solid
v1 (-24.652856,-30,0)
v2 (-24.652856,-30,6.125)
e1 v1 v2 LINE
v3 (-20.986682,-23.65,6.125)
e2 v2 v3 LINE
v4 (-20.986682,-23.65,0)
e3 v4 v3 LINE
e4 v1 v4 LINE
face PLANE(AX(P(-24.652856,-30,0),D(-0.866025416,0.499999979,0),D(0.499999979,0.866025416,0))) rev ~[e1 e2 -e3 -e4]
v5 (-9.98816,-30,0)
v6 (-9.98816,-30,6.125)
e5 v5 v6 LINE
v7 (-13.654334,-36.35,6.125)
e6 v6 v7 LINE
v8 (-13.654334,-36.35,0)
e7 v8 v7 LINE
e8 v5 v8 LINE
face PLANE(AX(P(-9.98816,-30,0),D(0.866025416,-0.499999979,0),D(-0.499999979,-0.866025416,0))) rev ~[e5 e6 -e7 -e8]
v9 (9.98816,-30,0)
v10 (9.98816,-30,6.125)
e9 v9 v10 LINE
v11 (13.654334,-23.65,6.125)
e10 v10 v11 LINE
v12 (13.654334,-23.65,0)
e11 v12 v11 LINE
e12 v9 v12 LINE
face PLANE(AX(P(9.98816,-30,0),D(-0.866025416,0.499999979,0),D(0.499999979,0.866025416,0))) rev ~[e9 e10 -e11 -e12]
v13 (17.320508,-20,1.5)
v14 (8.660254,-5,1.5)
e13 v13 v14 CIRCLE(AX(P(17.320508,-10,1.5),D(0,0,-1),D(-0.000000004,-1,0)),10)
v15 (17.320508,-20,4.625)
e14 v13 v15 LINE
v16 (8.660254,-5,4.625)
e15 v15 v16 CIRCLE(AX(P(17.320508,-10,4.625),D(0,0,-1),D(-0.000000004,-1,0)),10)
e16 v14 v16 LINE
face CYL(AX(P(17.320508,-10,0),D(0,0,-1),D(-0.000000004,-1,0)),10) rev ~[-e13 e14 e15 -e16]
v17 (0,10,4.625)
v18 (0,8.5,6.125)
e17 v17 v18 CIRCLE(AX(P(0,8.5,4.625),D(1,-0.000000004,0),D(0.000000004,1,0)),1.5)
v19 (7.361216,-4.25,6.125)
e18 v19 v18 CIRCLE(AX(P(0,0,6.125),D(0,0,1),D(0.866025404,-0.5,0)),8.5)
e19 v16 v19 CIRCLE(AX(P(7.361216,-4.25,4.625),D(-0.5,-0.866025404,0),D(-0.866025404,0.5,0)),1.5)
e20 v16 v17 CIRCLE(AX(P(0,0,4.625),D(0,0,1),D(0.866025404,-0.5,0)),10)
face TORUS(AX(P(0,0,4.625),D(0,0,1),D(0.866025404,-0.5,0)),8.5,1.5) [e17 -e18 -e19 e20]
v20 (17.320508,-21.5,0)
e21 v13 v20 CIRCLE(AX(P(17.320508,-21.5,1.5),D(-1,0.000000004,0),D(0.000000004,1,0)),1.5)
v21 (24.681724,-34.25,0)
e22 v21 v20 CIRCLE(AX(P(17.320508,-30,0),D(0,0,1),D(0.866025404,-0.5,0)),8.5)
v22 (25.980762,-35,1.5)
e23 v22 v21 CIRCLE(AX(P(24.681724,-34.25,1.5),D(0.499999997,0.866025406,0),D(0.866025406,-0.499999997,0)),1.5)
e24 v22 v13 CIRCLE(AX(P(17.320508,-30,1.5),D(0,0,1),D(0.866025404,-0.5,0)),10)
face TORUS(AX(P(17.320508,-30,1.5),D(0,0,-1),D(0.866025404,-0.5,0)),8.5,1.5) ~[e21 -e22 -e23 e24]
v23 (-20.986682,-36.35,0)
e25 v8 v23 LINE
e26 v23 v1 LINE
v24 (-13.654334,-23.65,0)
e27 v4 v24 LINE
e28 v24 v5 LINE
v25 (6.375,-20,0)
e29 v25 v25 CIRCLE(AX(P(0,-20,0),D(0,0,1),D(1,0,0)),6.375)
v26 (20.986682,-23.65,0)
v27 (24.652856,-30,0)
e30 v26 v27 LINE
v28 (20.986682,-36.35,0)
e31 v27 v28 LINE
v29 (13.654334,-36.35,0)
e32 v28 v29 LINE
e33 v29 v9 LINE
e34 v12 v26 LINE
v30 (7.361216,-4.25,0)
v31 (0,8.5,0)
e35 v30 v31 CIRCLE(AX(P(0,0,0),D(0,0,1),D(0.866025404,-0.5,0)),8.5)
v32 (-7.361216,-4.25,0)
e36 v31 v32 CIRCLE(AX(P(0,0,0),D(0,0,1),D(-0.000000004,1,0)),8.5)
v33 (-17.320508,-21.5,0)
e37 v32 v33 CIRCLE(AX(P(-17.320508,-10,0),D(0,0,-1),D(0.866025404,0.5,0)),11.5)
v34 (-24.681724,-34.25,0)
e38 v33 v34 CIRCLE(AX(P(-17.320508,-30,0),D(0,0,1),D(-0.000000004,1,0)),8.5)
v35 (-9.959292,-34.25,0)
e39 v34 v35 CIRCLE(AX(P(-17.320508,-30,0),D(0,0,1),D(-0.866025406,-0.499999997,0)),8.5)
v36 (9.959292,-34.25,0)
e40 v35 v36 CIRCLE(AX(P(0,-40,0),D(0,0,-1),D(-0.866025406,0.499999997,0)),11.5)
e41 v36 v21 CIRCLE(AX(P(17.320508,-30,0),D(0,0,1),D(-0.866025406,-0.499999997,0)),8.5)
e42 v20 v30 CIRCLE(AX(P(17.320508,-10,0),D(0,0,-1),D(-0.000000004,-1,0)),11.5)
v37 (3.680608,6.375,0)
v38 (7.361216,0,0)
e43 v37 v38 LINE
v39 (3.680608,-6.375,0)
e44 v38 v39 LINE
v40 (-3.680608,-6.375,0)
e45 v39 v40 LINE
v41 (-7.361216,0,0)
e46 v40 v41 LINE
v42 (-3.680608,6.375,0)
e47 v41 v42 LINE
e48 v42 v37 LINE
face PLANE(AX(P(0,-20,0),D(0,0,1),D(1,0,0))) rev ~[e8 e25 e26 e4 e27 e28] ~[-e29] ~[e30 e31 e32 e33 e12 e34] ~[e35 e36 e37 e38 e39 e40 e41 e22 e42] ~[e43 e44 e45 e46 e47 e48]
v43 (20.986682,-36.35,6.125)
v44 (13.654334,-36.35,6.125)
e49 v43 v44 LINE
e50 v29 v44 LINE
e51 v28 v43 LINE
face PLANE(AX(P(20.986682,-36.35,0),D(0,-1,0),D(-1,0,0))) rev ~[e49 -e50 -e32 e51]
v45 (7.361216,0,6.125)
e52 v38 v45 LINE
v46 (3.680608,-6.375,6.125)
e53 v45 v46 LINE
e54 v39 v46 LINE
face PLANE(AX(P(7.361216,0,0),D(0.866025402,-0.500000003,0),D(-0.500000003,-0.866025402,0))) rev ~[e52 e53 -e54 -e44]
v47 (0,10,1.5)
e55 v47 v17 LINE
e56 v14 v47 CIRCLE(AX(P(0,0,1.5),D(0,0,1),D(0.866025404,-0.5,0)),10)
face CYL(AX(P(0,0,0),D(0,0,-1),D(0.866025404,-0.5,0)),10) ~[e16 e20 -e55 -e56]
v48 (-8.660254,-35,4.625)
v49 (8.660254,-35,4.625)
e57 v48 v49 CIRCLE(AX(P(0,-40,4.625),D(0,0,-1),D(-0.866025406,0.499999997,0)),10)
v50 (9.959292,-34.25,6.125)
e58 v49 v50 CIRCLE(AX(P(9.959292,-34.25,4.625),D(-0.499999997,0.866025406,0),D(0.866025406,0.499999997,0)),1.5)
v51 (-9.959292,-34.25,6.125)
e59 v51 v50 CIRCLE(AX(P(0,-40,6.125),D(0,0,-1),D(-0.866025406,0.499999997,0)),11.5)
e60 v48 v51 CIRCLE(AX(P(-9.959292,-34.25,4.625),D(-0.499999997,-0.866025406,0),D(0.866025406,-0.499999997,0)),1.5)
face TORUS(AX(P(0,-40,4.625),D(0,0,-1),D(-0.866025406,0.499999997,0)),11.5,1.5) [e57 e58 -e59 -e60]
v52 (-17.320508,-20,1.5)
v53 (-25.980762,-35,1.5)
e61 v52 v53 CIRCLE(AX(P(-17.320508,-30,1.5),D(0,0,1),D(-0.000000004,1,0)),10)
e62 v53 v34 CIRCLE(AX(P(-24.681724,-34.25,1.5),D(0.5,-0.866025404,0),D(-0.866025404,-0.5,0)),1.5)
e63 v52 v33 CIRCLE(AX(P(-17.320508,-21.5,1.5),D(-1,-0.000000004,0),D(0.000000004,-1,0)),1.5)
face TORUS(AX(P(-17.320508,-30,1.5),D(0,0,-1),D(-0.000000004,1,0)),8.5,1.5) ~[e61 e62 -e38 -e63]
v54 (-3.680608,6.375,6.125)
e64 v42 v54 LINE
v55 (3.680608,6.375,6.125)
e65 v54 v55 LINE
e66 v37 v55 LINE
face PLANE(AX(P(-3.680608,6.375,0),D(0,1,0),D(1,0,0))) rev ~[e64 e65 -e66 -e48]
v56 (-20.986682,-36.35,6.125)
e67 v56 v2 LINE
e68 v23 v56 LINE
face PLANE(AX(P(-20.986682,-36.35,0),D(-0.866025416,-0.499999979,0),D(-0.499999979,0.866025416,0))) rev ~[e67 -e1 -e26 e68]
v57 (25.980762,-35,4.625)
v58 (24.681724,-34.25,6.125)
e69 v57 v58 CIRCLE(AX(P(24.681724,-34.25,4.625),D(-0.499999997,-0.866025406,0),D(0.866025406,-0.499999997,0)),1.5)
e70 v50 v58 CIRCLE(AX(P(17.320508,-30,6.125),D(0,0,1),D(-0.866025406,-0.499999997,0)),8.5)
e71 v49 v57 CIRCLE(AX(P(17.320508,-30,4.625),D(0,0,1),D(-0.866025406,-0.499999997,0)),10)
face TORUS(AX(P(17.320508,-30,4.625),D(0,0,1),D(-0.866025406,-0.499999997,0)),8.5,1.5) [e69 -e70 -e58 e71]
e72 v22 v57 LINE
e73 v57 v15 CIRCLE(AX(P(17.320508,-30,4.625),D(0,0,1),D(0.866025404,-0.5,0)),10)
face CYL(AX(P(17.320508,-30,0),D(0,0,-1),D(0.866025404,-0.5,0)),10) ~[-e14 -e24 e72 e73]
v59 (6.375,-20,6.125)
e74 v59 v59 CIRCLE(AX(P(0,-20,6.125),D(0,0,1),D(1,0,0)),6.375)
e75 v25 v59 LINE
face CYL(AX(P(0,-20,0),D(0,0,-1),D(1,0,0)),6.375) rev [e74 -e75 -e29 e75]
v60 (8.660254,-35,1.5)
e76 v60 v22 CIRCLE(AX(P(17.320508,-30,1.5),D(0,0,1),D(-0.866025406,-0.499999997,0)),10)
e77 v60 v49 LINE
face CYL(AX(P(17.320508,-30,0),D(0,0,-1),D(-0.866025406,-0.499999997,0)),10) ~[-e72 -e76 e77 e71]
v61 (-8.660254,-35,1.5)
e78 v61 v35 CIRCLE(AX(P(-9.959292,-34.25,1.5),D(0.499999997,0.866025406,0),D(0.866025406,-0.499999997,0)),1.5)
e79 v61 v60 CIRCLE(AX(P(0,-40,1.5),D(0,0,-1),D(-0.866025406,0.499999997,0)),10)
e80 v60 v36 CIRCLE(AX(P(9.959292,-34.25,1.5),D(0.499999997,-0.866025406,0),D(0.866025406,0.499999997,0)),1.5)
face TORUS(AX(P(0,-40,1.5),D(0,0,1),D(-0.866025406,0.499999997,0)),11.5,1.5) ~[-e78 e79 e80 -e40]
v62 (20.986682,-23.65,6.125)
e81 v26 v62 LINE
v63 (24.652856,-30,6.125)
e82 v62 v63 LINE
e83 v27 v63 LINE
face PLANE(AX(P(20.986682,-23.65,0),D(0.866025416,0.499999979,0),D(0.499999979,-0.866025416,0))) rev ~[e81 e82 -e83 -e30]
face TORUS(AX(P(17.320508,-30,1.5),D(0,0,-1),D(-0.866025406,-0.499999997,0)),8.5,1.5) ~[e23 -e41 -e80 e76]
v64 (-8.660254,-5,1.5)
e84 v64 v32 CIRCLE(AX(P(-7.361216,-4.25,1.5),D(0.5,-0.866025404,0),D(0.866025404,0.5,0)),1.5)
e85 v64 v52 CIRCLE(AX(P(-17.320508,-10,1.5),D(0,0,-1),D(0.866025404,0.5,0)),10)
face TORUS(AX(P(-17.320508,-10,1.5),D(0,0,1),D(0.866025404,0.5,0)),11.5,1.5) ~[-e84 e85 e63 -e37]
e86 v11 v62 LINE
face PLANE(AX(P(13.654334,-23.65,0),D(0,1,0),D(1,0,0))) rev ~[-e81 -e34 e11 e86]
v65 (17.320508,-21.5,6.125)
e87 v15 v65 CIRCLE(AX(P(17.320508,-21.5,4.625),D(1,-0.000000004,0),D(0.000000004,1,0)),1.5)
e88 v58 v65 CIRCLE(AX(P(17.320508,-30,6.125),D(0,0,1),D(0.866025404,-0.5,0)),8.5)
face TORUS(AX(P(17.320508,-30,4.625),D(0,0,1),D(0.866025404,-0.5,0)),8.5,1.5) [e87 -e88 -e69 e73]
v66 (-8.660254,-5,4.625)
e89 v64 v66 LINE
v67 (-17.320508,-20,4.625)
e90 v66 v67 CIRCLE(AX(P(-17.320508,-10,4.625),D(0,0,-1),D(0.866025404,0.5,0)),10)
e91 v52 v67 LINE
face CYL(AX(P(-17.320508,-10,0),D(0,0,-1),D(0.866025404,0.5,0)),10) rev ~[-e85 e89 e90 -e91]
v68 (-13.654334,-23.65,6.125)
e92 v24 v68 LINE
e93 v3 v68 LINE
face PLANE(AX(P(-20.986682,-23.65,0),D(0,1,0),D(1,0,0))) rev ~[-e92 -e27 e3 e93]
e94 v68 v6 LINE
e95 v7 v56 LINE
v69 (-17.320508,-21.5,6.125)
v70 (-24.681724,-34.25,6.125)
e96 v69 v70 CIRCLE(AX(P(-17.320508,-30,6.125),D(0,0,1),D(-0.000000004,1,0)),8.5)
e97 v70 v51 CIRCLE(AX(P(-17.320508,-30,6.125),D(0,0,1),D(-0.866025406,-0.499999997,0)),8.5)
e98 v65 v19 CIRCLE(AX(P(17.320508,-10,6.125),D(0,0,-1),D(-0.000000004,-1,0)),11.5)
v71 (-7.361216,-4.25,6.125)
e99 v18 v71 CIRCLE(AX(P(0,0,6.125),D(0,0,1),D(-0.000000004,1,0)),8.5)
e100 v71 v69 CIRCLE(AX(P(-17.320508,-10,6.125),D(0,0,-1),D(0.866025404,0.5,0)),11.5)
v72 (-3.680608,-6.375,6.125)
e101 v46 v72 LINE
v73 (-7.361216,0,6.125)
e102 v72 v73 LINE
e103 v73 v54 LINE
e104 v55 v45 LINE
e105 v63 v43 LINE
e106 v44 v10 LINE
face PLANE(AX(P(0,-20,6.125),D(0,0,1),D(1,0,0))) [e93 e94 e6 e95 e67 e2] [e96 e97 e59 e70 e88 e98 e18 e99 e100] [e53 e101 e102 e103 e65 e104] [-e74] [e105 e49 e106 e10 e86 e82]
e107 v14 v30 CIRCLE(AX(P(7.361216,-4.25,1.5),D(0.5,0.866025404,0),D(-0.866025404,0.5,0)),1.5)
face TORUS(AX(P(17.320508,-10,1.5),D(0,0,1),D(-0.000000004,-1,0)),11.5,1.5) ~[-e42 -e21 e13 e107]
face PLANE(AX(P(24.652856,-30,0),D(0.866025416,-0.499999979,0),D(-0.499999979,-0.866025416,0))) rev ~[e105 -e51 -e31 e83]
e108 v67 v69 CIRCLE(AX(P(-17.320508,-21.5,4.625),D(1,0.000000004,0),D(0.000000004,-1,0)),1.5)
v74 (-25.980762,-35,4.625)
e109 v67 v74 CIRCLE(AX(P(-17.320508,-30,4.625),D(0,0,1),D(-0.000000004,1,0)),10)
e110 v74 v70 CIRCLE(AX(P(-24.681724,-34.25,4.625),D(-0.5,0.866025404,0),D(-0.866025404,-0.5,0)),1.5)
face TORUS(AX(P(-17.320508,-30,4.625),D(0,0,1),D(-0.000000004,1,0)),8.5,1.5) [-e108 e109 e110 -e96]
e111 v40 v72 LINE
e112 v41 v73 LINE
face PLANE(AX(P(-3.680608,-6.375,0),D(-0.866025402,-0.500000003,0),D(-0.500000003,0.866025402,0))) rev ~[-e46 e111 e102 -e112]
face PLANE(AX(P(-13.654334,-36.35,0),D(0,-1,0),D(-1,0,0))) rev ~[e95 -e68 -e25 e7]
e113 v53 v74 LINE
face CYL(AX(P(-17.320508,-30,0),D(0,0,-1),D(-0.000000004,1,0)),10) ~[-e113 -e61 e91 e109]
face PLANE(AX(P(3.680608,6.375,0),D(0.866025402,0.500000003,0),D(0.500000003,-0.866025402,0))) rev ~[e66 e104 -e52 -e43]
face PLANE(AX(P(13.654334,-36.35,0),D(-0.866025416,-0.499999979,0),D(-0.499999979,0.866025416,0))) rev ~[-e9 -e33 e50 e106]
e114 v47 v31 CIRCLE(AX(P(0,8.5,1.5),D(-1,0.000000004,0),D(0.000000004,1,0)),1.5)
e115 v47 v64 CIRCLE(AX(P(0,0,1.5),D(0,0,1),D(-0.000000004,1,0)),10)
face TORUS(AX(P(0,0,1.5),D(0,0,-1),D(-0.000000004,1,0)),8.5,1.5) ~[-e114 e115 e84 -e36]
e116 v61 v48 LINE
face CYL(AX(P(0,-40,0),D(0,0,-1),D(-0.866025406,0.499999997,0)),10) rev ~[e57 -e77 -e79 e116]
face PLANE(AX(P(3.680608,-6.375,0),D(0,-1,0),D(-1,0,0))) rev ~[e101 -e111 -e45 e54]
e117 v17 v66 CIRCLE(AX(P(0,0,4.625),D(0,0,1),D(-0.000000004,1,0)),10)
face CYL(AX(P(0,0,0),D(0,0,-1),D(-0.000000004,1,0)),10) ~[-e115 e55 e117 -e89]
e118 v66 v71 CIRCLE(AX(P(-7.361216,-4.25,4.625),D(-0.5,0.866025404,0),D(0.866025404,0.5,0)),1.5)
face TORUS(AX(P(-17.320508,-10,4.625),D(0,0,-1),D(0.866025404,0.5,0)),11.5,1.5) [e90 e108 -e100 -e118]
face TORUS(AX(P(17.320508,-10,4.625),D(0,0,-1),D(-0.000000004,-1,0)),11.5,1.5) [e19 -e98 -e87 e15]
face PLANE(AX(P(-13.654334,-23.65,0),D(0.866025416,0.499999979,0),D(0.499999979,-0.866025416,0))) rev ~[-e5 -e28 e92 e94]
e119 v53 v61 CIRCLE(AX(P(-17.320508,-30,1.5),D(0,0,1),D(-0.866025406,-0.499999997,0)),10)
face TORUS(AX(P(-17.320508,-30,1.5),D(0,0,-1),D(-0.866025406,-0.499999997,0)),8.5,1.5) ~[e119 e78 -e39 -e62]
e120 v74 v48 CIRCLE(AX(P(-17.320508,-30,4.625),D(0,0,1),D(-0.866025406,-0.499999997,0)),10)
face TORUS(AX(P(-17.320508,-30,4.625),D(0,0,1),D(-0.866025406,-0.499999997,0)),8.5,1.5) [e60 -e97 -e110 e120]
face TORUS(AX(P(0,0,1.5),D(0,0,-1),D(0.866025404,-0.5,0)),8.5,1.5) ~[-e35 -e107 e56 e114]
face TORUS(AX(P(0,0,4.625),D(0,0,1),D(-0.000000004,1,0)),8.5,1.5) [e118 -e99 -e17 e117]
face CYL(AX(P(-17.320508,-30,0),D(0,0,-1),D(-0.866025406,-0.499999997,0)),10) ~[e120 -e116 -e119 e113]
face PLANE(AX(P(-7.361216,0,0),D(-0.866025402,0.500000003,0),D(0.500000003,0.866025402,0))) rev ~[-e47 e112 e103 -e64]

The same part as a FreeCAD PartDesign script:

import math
import FreeCAD as App
import Part
import Sketcher
from FreeCAD import Vector
Q = App.Units.Quantity


def edges_at(feature, points):
    """Names of the edges that pass closest to the given points."""
    edges = feature.Shape.Edges
    near = lambda p: min(range(len(edges)), key=lambda i: edges[i].distToShape(Part.Vertex(*p))[0])
    return sorted({f"Edge{near(p) + 1}" for p in points})

doc = App.newDocument("Part")
body = doc.addObject("PartDesign::Body", "Body")

sketch1 = doc.addObject("Sketcher::SketchObject", "Sketch")
body.addObject(sketch1)
sketch1.AttachmentSupport = (doc.XY_Plane, [""])
sketch1.MapMode = "FlatFace"
sketch1.addGeometry([
    Part.ArcOfCircle(Part.Circle(Vector(-17, -30, 0), Vector(0, 0, 1), 10), math.radians(90), math.radians(210)),
    Part.ArcOfCircle(Part.Circle(Vector(-17, -30, 0), Vector(0, 0, 1), 10), math.radians(-150), math.radians(-30)),
    Part.ArcOfCircle(Part.Circle(Vector(0, -40, 0), Vector(0, 0, 1), 10), math.radians(30), math.radians(150)),
    Part.ArcOfCircle(Part.Circle(Vector(17, -30, 0), Vector(0, 0, 1), 10), math.radians(-150), math.radians(-30)),
    Part.ArcOfCircle(Part.Circle(Vector(17, -30, 0), Vector(0, 0, 1), 10), math.radians(-30), math.radians(90)),
    Part.ArcOfCircle(Part.Circle(Vector(17, -10, 0), Vector(0, 0, 1), 10), math.radians(150), math.radians(270)),
    Part.ArcOfCircle(Part.Circle(Vector(0, 0, 0), Vector(0, 0, 1), 10), math.radians(-30), math.radians(90)),
    Part.ArcOfCircle(Part.Circle(Vector(0, 0, 0), Vector(0, 0, 1), 10), math.radians(90), math.radians(210)),
    Part.ArcOfCircle(Part.Circle(Vector(-17, -10, 0), Vector(0, 0, 1), 10), math.radians(-90), math.radians(30)),
    Part.LineSegment(Vector(-25, -30, 0), Vector(-21, -24, 0)),
    Part.LineSegment(Vector(-21, -24, 0), Vector(-14, -24, 0)),
    Part.LineSegment(Vector(-14, -24, 0), Vector(-10, -30, 0)),
    Part.LineSegment(Vector(-10, -30, 0), Vector(-14, -36, 0)),
    Part.LineSegment(Vector(-14, -36, 0), Vector(-21, -36, 0)),
    Part.LineSegment(Vector(-21, -36, 0), Vector(-25, -30, 0)),
    Part.Circle(Vector(0, -20, 0), Vector(0, 0, 1), 6),
    Part.LineSegment(Vector(21, -24, 0), Vector(25, -30, 0)),
    Part.LineSegment(Vector(25, -30, 0), Vector(21, -36, 0)),
    Part.LineSegment(Vector(21, -36, 0), Vector(14, -36, 0)),
    Part.LineSegment(Vector(14, -36, 0), Vector(10, -30, 0)),
    Part.LineSegment(Vector(10, -30, 0), Vector(14, -24, 0)),
    Part.LineSegment(Vector(14, -24, 0), Vector(21, -24, 0)),
    Part.LineSegment(Vector(-7, 0, 0), Vector(-4, 6, 0)),
    Part.LineSegment(Vector(-4, 6, 0), Vector(4, 6, 0)),
    Part.LineSegment(Vector(4, 6, 0), Vector(7, 0, 0)),
    Part.LineSegment(Vector(7, 0, 0), Vector(4, -6, 0)),
    Part.LineSegment(Vector(4, -6, 0), Vector(-4, -6, 0)),
    Part.LineSegment(Vector(-4, -6, 0), Vector(-7, 0, 0)),
], False)
sketch1.addConstraint([
    Sketcher.Constraint("Tangent", 0, 2, 1, 1),
    Sketcher.Constraint("Tangent", 1, 2, 2, 2),
    Sketcher.Constraint("Tangent", 2, 1, 3, 1),
    Sketcher.Constraint("Tangent", 3, 2, 4, 1),
    Sketcher.Constraint("Tangent", 4, 2, 5, 2),
    Sketcher.Constraint("Tangent", 5, 1, 6, 1),
    Sketcher.Constraint("Tangent", 6, 2, 7, 1),
    Sketcher.Constraint("Tangent", 7, 2, 8, 2),
    Sketcher.Constraint("Tangent", 8, 1, 0, 1),
    Sketcher.Constraint("Coincident", 9, 2, 10, 1),
    Sketcher.Constraint("Coincident", 10, 2, 11, 1),
    Sketcher.Constraint("Coincident", 11, 2, 12, 1),
    Sketcher.Constraint("Coincident", 12, 2, 13, 1),
    Sketcher.Constraint("Coincident", 13, 2, 14, 1),
    Sketcher.Constraint("Coincident", 14, 2, 9, 1),
    Sketcher.Constraint("Coincident", 16, 2, 17, 1),
    Sketcher.Constraint("Coincident", 17, 2, 18, 1),
    Sketcher.Constraint("Coincident", 18, 2, 19, 1),
    Sketcher.Constraint("Coincident", 19, 2, 20, 1),
    Sketcher.Constraint("Coincident", 20, 2, 21, 1),
    Sketcher.Constraint("Coincident", 21, 2, 16, 1),
    Sketcher.Constraint("Coincident", 22, 2, 23, 1),
    Sketcher.Constraint("Coincident", 23, 2, 24, 1),
    Sketcher.Constraint("Coincident", 24, 2, 25, 1),
    Sketcher.Constraint("Coincident", 25, 2, 26, 1),
    Sketcher.Constraint("Coincident", 26, 2, 27, 1),
    Sketcher.Constraint("Coincident", 27, 2, 22, 1),
    Sketcher.Constraint("Horizontal", 10),
    Sketcher.Constraint("Horizontal", 13),
    Sketcher.Constraint("Horizontal", 18),
    Sketcher.Constraint("Horizontal", 21),
    Sketcher.Constraint("Horizontal", 23),
    Sketcher.Constraint("Horizontal", 26),
    Sketcher.Constraint("Coincident", 6, 3, -1, 1),
    Sketcher.Constraint("Equal", 0, 1),
    Sketcher.Constraint("Equal", 1, 2),
    Sketcher.Constraint("Equal", 2, 3),
    Sketcher.Constraint("Equal", 3, 4),
    Sketcher.Constraint("Equal", 4, 5),
    Sketcher.Constraint("Equal", 5, 6),
    Sketcher.Constraint("Equal", 6, 7),
    Sketcher.Constraint("Equal", 7, 8),
    Sketcher.Constraint("Symmetric", 22, 2, 25, 2, -1, 1),
    Sketcher.Constraint("Symmetric", 24, 2, 27, 2, -1, 1),
    Sketcher.Constraint("Symmetric", 0, 3, 3, 3, -2),
    Sketcher.Constraint("Symmetric", 14, 2, 16, 2, -2),
    Sketcher.Constraint("Symmetric", 13, 2, 17, 2, -2),
    Sketcher.Constraint("Symmetric", 11, 2, 19, 2, -2),
    Sketcher.Constraint("Symmetric", 10, 2, 20, 2, -2),
    Sketcher.Constraint("PointOnObject", 15, 3, -2),
    Sketcher.Constraint("PointOnObject", 6, 2, -2),
    Sketcher.Constraint("PointOnObject", 24, 2, -1),
    Sketcher.Constraint("Parallel", 9, 12),
    Sketcher.Constraint("Parallel", 11, 14),
    Sketcher.Constraint("Parallel", 14, 16),
    Sketcher.Constraint("Parallel", 12, 17),
    Sketcher.Constraint("Parallel", 16, 19),
    Sketcher.Constraint("Parallel", 20, 22),
    Sketcher.Constraint("Parallel", 19, 24),
    Sketcher.Constraint("Parallel", 24, 27),
    Sketcher.Constraint("Horizontal", 0, 2, 1, 2),
    Sketcher.Constraint("Horizontal", 2, 1, 3, 2),
    Sketcher.Constraint("Horizontal", 15, 3, 4, 2),
    Sketcher.Constraint("Horizontal", 4, 3, 11, 2),
    Sketcher.Constraint("Horizontal", 11, 2, 14, 2),
    Sketcher.Constraint("Vertical", 4, 3, 5, 3),
    Sketcher.Constraint("Vertical", 10, 2, 12, 2),
    Sketcher.Constraint("Radius", 0, 10.0),
    Sketcher.Constraint("Diameter", 15, 12.75),
    Sketcher.Constraint("Angle", 9, Q("60.000001 deg")),
    Sketcher.Constraint("DistanceY", 0, 3, -1, 1, 30.0),
    Sketcher.Constraint("DistanceY", 9, 2, -1, 1, 23.65),
    Sketcher.Constraint("DistanceY", -1, 1, 22, 2, 6.375),
    Sketcher.Constraint("DistanceX", 10, 1, 10, 2, 7.332348),
    Sketcher.Constraint("DistanceX", 23, 1, 23, 2, 7.361216),
    Sketcher.Constraint("DistanceX", 9, 2, -1, 1, 20.986682),
])
pad1 = doc.addObject("PartDesign::Pad", "Pad")
body.addObject(pad1)
pad1.Profile = sketch1
pad1.Length = 6.125
doc.recompute()

fillet = doc.addObject("PartDesign::Fillet", "Fillet")
body.addObject(fillet)
fillet.Base = (pad1, edges_at(pad1, [(-8.66, -15, 6.125), (-8.66, -15, 0)]))
fillet.Radius = 1.5

doc.recompute()
